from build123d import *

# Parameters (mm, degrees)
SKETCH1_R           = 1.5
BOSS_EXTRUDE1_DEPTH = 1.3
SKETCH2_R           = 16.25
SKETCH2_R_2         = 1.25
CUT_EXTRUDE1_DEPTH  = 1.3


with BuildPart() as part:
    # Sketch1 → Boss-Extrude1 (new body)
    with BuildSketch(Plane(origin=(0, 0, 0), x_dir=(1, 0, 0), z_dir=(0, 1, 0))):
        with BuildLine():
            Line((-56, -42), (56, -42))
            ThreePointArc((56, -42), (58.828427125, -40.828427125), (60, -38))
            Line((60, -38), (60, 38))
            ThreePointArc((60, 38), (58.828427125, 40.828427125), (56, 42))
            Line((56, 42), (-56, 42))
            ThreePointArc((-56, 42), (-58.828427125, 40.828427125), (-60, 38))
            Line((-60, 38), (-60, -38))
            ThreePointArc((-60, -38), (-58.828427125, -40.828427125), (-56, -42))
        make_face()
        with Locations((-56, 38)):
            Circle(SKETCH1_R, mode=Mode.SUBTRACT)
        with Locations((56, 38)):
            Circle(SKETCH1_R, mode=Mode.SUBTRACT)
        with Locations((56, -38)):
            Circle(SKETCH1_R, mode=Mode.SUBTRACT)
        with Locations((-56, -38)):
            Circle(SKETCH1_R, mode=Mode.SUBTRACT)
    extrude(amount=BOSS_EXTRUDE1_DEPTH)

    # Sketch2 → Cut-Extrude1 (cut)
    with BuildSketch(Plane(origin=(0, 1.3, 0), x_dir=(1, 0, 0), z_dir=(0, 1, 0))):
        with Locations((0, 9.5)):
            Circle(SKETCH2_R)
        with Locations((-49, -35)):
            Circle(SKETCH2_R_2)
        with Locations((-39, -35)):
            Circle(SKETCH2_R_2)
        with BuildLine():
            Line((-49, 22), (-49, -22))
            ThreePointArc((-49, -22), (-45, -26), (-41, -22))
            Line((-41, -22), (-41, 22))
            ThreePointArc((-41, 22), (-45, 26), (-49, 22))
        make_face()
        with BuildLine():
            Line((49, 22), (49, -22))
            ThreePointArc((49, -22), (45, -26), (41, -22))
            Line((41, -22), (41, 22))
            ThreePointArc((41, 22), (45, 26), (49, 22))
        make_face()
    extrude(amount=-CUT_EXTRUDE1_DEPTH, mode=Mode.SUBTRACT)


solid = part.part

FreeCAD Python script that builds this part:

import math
import FreeCAD as App
import Part
import Sketcher

V = App.Vector
Q = App.Units.Quantity

doc = App.newDocument("Part")
params = doc.addObject("Spreadsheet::Sheet", "Params")
for row, (alias, value) in enumerate([
    ("sketch1_diameter", "3 mm"),
    ("sketch1_radius", "4 mm"),
    ("sketch1_width", "112 mm"),
    ("sketch1_height", "76 mm"),
    ("pad1_length", "1.3 mm"),
    ("sketch2_radius", "4 mm"),
    ("sketch2_diameter", "32.5 mm"),
    ("sketch2_diameter2", "2.5 mm"),
    ("sketch2_height", "44 mm"),
    ("pocket1_length", "1.3 mm"),
], start=1):
    params.set(f"A{row}", alias)
    params.set(f"B{row}", "=" + value)
    params.setAlias(f"B{row}", alias)

body = doc.addObject("PartDesign::Body", "Body")

# Sketch on XZ plane
sketch1 = body.newObject("Sketcher::SketchObject", "Sketch")
sketch1.AttachmentSupport = (doc.getObject("XZ_Plane"), [""])
sketch1.MapMode = "FlatFace"
sketch1.addGeometry(Part.LineSegment(V(-56, 42, 0), V(56, 42, 0)), False)
sketch1.addGeometry(Part.ArcOfCircle(Part.Circle(V(56, 38, 0), V(0, 0, 1), 4), math.radians(0), math.radians(90)), False)
sketch1.addGeometry(Part.LineSegment(V(60, 38, 0), V(60, -38, 0)), False)
sketch1.addGeometry(Part.ArcOfCircle(Part.Circle(V(56, -38, 0), V(0, 0, 1), 4), math.radians(-90), math.radians(0)), False)
sketch1.addGeometry(Part.LineSegment(V(56, -42, 0), V(-56, -42, 0)), False)
sketch1.addGeometry(Part.ArcOfCircle(Part.Circle(V(-56, -38, 0), V(0, 0, 1), 4), math.radians(180), math.radians(270)), False)
sketch1.addGeometry(Part.LineSegment(V(-60, -38, 0), V(-60, 38, 0)), False)
sketch1.addGeometry(Part.ArcOfCircle(Part.Circle(V(-56, 38, 0), V(0, 0, 1), 4), math.radians(90), math.radians(180)), False)
sketch1.addGeometry(Part.Circle(V(-56, 38, 0), V(0, 0, 1), 1.5), False)
sketch1.addGeometry(Part.Circle(V(56, 38, 0), V(0, 0, 1), 1.5), False)
sketch1.addGeometry(Part.Circle(V(-56, -38, 0), V(0, 0, 1), 1.5), False)
sketch1.addGeometry(Part.Circle(V(56, -38, 0), V(0, 0, 1), 1.5), False)
sketch1.addConstraint(Sketcher.Constraint("Tangent", 0, 2, 1, 2))
sketch1.addConstraint(Sketcher.Constraint("Tangent", 1, 1, 2, 1))
sketch1.addConstraint(Sketcher.Constraint("Tangent", 2, 2, 3, 2))
sketch1.addConstraint(Sketcher.Constraint("Tangent", 3, 1, 4, 1))
sketch1.addConstraint(Sketcher.Constraint("Tangent", 4, 2, 5, 2))
sketch1.addConstraint(Sketcher.Constraint("Tangent", 5, 1, 6, 1))
sketch1.addConstraint(Sketcher.Constraint("Tangent", 6, 2, 7, 2))
sketch1.addConstraint(Sketcher.Constraint("Tangent", 7, 1, 0, 1))
sketch1.addConstraint(Sketcher.Constraint("Horizontal", 0))
sketch1.addConstraint(Sketcher.Constraint("Vertical", 2))
sketch1.addConstraint(Sketcher.Constraint("Horizontal", 4))
sketch1.addConstraint(Sketcher.Constraint("Vertical", 6))
sketch1.addConstraint(Sketcher.Constraint("Coincident", 8, 3, 7, 3))
sketch1.addConstraint(Sketcher.Constraint("Coincident", 9, 3, 1, 3))
sketch1.addConstraint(Sketcher.Constraint("Coincident", 10, 3, 5, 3))
sketch1.addConstraint(Sketcher.Constraint("Coincident", 11, 3, 3, 3))
sketch1.addConstraint(Sketcher.Constraint("Equal", 1, 3))
sketch1.addConstraint(Sketcher.Constraint("Equal", 3, 5))
sketch1.addConstraint(Sketcher.Constraint("Equal", 5, 7))
sketch1.addConstraint(Sketcher.Constraint("Equal", 8, 9))
sketch1.addConstraint(Sketcher.Constraint("Equal", 9, 10))
sketch1.addConstraint(Sketcher.Constraint("Equal", 10, 11))
sketch1.addConstraint(Sketcher.Constraint("Symmetric", 1, 3, 5, 3, -1, 1))
sketch1.addConstraint(Sketcher.Constraint("Diameter", 8, Q("3 mm")))
sketch1.addConstraint(Sketcher.Constraint("Radius", 1, Q("4 mm")))
sketch1.addConstraint(Sketcher.Constraint("DistanceX", 0, 1, 0, 2, Q("112 mm")))
sketch1.addConstraint(Sketcher.Constraint("DistanceY", 2, 2, 2, 1, Q("76 mm")))
sketch1.setExpression("Constraints[23]", "Params.sketch1_diameter")
sketch1.setExpression("Constraints[24]", "Params.sketch1_radius")
sketch1.setExpression("Constraints[25]", "Params.sketch1_width")
sketch1.setExpression("Constraints[26]", "Params.sketch1_height")
pad1 = body.newObject("PartDesign::Pad", "Pad")
pad1.Profile = sketch1
pad1.setExpression("Length", "Params.pad1_length")
pad1.Reversed = True

# Sketch on XZ plane
sketch2 = body.newObject("Sketcher::SketchObject", "Sketch001")
sketch2.AttachmentSupport = (doc.getObject("XZ_Plane"), [""])
sketch2.MapMode = "FlatFace"
sketch2.AttachmentOffset = App.Placement(V(0, 0, -1.3), App.Rotation())
sketch2.addGeometry(Part.Circle(V(0, -9.5, 0), V(0, 0, 1), 16.2), False)
sketch2.addGeometry(Part.Circle(V(-49, 35, 0), V(0, 0, 1), 1.2), False)
sketch2.addGeometry(Part.Circle(V(-39, 35, 0), V(0, 0, 1), 1.2), False)
sketch2.addGeometry(Part.LineSegment(V(-49, -22, 0), V(-49, 22, 0)), False)
sketch2.addGeometry(Part.ArcOfCircle(Part.Circle(V(-45, 22, 0), V(0, 0, 1), 4), math.radians(0), math.radians(180)), False)
sketch2.addGeometry(Part.LineSegment(V(-41, 22, 0), V(-41, -22, 0)), False)
sketch2.addGeometry(Part.ArcOfCircle(Part.Circle(V(-45, -22, 0), V(0, 0, 1), 4), math.radians(180), math.radians(360)), False)
sketch2.addGeometry(Part.LineSegment(V(49, 22, 0), V(49, -22, 0)), False)
sketch2.addGeometry(Part.ArcOfCircle(Part.Circle(V(45, -22, 0), V(0, 0, 1), 4), math.radians(180), math.radians(360)), False)
sketch2.addGeometry(Part.LineSegment(V(41, -22, 0), V(41, 22, 0)), False)
sketch2.addGeometry(Part.ArcOfCircle(Part.Circle(V(45, 22, 0), V(0, 0, 1), 4), math.radians(0), math.radians(180)), False)
sketch2.addConstraint(Sketcher.Constraint("Tangent", 3, 2, 4, 2))
sketch2.addConstraint(Sketcher.Constraint("Tangent", 4, 1, 5, 1))
sketch2.addConstraint(Sketcher.Constraint("Tangent", 5, 2, 6, 2))
sketch2.addConstraint(Sketcher.Constraint("Tangent", 6, 1, 3, 1))
sketch2.addConstraint(Sketcher.Constraint("Tangent", 7, 2, 8, 2))
sketch2.addConstraint(Sketcher.Constraint("Tangent", 8, 1, 9, 1))
sketch2.addConstraint(Sketcher.Constraint("Tangent", 9, 2, 10, 2))
sketch2.addConstraint(Sketcher.Constraint("Tangent", 10, 1, 7, 1))
sketch2.addConstraint(Sketcher.Constraint("Vertical", 3))
sketch2.addConstraint(Sketcher.Constraint("Vertical", 5))
sketch2.addConstraint(Sketcher.Constraint("Vertical", 7))
sketch2.addConstraint(Sketcher.Constraint("Vertical", 9))
sketch2.addConstraint(Sketcher.Constraint("Equal", 1, 2))
sketch2.addConstraint(Sketcher.Constraint("Equal", 6, 8))
sketch2.addConstraint(Sketcher.Constraint("Symmetric", 4, 3, 8, 3, -1, 1))
sketch2.addConstraint(Sketcher.Constraint("PointOnObject", 0, 3, -2))
sketch2.addConstraint(Sketcher.Constraint("Horizontal", 1, 3, 2, 3))
sketch2.addConstraint(Sketcher.Constraint("Horizontal", 6, 3, 8, 3))
sketch2.addConstraint(Sketcher.Constraint("Horizontal", 4, 3, 10, 3))
sketch2.addConstraint(Sketcher.Constraint("Vertical", 1, 3, 3, 2))
sketch2.addConstraint(Sketcher.Constraint("Radius", 4, Q("4 mm")))
sketch2.addConstraint(Sketcher.Constraint("Diameter", 0, Q("32.5 mm")))
sketch2.addConstraint(Sketcher.Constraint("Diameter", 1, Q("2.5 mm")))
sketch2.addConstraint(Sketcher.Constraint("DistanceY", 3, 1, 3, 2, Q("44 mm")))
sketch2.addConstraint(Sketcher.Constraint("DistanceX", 1, 3, -1, 1, Q("49 mm")))
sketch2.addConstraint(Sketcher.Constraint("DistanceY", -1, 1, 1, 3, Q("35 mm")))
sketch2.addConstraint(Sketcher.Constraint("DistanceX", 2, 3, -1, 1, Q("39 mm")))
sketch2.addConstraint(Sketcher.Constraint("DistanceY", 0, 3, -1, 1, Q("9.5 mm")))
sketch2.setExpression("Constraints[20]", "Params.sketch2_radius")
sketch2.setExpression("Constraints[21]", "Params.sketch2_diameter")
sketch2.setExpression("Constraints[22]", "Params.sketch2_diameter2")
sketch2.setExpression("Constraints[23]", "Params.sketch2_height")
pocket1 = body.newObject("PartDesign::Pocket", "Pocket")
pocket1.Profile = sketch2
pocket1.setExpression("Length", "Params.pocket1_length")
pocket1.Reversed = True

doc.recompute()
